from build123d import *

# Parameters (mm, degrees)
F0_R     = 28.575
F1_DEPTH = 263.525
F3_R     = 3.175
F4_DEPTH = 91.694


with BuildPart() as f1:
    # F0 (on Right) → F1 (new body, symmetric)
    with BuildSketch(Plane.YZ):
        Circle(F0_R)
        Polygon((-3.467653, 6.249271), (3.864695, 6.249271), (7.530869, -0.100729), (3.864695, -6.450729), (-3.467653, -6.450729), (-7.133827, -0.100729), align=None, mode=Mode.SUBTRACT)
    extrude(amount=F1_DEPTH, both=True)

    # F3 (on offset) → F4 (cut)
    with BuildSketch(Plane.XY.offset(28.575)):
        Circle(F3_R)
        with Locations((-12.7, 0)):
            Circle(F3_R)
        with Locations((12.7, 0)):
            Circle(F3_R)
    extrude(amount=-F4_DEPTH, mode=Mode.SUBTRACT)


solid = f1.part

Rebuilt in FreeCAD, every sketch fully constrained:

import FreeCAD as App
import Part
import Sketcher
from FreeCAD import Vector
Q = App.Units.Quantity


def add_polygon(sketch, points):
    """Adds a closed chain of lines whose ends are joined by coincident constraints."""
    first, n = sketch.GeometryCount, len(points)
    for a, b in zip(points, points[1:] + points[:1]):
        sketch.addGeometry(Part.LineSegment(App.Vector(*a, 0), App.Vector(*b, 0)), False)
    for i in range(n):
        sketch.addConstraint(Sketcher.Constraint("Coincident", first + i, 2, first + (i + 1) % n, 1))

doc = App.newDocument("Part")
body = doc.addObject("PartDesign::Body", "Body")

sketch1 = body.newObject("Sketcher::SketchObject", "Sketch")
sketch1.AttachmentSupport = (doc.getObject("YZ_Plane"), [""])
sketch1.MapMode = "FlatFace"
sketch1.addGeometry(Part.Circle(Vector(0, 0, 0), Vector(0, 0, 1), 29), False)
add_polygon(sketch1, [(-7, 0), (-3, 6), (4, 6), (8, 0), (4, -6), (-3, -6)])
sketch1.addConstraint([
    Sketcher.Constraint("Horizontal", 2),
    Sketcher.Constraint("Horizontal", 5),
    Sketcher.Constraint("Coincident", 0, 3, -1, 1),
    Sketcher.Constraint("Parallel", 1, 4),
    Sketcher.Constraint("Parallel", 3, 6),
    Sketcher.Constraint("Horizontal", 3, 2, 6, 2),
    Sketcher.Constraint("Vertical", 2, 2, 4, 2),
    Sketcher.Constraint("Vertical", 1, 2, 5, 2),
    Sketcher.Constraint("Diameter", 0, Q("2.25 in")),
    Sketcher.Constraint("Angle", 1, Q("60.000001 deg")),
    Sketcher.Constraint("DistanceY", 4, 2, 2, 2, Q("0.5 in")),
    Sketcher.Constraint("DistanceX", 2, 1, 2, 2, 7.332348),
    Sketcher.Constraint("DistanceY", -1, 1, 1, 2, 6.249271),
    Sketcher.Constraint("DistanceX", -1, 1, 3, 2, 7.530869),
])
pad1 = body.newObject("PartDesign::Pad", "Pad")
pad1.Profile = sketch1
pad1.Length = Q("20.75 in")
pad1.Midplane = True

sketch2 = body.newObject("Sketcher::SketchObject", "Sketch001")
sketch2.AttachmentSupport = (doc.getObject("XY_Plane"), [""])
sketch2.MapMode = "FlatFace"
sketch2.AttachmentOffset = App.Placement(Vector(0, 0, 1.125 * 25.4), App.Rotation())
sketch2.addGeometry([
    Part.Circle(Vector(0, 0, 0), Vector(0, 0, 1), 3.2),
    Part.Circle(Vector(-12.7, 0, 0), Vector(0, 0, 1), 3.2),
    Part.Circle(Vector(12.7, 0, 0), Vector(0, 0, 1), 3.2),
], False)
sketch2.addConstraint([
    Sketcher.Constraint("Coincident", 0, 3, -1, 1),
    Sketcher.Constraint("Equal", 0, 1),
    Sketcher.Constraint("Equal", 1, 2),
    Sketcher.Constraint("Symmetric", 1, 3, 2, 3, -1, 1),
    Sketcher.Constraint("PointOnObject", 1, 3, -1),
    Sketcher.Constraint("Diameter", 0, Q("0.25 in")),
    Sketcher.Constraint("DistanceX", 1, 3, 2, 3, Q("1 in")),
])
pocket1 = body.newObject("PartDesign::Pocket", "Pocket")
pocket1.Profile = sketch2
pocket1.Length = Q("3.61 in")

doc.recompute()
